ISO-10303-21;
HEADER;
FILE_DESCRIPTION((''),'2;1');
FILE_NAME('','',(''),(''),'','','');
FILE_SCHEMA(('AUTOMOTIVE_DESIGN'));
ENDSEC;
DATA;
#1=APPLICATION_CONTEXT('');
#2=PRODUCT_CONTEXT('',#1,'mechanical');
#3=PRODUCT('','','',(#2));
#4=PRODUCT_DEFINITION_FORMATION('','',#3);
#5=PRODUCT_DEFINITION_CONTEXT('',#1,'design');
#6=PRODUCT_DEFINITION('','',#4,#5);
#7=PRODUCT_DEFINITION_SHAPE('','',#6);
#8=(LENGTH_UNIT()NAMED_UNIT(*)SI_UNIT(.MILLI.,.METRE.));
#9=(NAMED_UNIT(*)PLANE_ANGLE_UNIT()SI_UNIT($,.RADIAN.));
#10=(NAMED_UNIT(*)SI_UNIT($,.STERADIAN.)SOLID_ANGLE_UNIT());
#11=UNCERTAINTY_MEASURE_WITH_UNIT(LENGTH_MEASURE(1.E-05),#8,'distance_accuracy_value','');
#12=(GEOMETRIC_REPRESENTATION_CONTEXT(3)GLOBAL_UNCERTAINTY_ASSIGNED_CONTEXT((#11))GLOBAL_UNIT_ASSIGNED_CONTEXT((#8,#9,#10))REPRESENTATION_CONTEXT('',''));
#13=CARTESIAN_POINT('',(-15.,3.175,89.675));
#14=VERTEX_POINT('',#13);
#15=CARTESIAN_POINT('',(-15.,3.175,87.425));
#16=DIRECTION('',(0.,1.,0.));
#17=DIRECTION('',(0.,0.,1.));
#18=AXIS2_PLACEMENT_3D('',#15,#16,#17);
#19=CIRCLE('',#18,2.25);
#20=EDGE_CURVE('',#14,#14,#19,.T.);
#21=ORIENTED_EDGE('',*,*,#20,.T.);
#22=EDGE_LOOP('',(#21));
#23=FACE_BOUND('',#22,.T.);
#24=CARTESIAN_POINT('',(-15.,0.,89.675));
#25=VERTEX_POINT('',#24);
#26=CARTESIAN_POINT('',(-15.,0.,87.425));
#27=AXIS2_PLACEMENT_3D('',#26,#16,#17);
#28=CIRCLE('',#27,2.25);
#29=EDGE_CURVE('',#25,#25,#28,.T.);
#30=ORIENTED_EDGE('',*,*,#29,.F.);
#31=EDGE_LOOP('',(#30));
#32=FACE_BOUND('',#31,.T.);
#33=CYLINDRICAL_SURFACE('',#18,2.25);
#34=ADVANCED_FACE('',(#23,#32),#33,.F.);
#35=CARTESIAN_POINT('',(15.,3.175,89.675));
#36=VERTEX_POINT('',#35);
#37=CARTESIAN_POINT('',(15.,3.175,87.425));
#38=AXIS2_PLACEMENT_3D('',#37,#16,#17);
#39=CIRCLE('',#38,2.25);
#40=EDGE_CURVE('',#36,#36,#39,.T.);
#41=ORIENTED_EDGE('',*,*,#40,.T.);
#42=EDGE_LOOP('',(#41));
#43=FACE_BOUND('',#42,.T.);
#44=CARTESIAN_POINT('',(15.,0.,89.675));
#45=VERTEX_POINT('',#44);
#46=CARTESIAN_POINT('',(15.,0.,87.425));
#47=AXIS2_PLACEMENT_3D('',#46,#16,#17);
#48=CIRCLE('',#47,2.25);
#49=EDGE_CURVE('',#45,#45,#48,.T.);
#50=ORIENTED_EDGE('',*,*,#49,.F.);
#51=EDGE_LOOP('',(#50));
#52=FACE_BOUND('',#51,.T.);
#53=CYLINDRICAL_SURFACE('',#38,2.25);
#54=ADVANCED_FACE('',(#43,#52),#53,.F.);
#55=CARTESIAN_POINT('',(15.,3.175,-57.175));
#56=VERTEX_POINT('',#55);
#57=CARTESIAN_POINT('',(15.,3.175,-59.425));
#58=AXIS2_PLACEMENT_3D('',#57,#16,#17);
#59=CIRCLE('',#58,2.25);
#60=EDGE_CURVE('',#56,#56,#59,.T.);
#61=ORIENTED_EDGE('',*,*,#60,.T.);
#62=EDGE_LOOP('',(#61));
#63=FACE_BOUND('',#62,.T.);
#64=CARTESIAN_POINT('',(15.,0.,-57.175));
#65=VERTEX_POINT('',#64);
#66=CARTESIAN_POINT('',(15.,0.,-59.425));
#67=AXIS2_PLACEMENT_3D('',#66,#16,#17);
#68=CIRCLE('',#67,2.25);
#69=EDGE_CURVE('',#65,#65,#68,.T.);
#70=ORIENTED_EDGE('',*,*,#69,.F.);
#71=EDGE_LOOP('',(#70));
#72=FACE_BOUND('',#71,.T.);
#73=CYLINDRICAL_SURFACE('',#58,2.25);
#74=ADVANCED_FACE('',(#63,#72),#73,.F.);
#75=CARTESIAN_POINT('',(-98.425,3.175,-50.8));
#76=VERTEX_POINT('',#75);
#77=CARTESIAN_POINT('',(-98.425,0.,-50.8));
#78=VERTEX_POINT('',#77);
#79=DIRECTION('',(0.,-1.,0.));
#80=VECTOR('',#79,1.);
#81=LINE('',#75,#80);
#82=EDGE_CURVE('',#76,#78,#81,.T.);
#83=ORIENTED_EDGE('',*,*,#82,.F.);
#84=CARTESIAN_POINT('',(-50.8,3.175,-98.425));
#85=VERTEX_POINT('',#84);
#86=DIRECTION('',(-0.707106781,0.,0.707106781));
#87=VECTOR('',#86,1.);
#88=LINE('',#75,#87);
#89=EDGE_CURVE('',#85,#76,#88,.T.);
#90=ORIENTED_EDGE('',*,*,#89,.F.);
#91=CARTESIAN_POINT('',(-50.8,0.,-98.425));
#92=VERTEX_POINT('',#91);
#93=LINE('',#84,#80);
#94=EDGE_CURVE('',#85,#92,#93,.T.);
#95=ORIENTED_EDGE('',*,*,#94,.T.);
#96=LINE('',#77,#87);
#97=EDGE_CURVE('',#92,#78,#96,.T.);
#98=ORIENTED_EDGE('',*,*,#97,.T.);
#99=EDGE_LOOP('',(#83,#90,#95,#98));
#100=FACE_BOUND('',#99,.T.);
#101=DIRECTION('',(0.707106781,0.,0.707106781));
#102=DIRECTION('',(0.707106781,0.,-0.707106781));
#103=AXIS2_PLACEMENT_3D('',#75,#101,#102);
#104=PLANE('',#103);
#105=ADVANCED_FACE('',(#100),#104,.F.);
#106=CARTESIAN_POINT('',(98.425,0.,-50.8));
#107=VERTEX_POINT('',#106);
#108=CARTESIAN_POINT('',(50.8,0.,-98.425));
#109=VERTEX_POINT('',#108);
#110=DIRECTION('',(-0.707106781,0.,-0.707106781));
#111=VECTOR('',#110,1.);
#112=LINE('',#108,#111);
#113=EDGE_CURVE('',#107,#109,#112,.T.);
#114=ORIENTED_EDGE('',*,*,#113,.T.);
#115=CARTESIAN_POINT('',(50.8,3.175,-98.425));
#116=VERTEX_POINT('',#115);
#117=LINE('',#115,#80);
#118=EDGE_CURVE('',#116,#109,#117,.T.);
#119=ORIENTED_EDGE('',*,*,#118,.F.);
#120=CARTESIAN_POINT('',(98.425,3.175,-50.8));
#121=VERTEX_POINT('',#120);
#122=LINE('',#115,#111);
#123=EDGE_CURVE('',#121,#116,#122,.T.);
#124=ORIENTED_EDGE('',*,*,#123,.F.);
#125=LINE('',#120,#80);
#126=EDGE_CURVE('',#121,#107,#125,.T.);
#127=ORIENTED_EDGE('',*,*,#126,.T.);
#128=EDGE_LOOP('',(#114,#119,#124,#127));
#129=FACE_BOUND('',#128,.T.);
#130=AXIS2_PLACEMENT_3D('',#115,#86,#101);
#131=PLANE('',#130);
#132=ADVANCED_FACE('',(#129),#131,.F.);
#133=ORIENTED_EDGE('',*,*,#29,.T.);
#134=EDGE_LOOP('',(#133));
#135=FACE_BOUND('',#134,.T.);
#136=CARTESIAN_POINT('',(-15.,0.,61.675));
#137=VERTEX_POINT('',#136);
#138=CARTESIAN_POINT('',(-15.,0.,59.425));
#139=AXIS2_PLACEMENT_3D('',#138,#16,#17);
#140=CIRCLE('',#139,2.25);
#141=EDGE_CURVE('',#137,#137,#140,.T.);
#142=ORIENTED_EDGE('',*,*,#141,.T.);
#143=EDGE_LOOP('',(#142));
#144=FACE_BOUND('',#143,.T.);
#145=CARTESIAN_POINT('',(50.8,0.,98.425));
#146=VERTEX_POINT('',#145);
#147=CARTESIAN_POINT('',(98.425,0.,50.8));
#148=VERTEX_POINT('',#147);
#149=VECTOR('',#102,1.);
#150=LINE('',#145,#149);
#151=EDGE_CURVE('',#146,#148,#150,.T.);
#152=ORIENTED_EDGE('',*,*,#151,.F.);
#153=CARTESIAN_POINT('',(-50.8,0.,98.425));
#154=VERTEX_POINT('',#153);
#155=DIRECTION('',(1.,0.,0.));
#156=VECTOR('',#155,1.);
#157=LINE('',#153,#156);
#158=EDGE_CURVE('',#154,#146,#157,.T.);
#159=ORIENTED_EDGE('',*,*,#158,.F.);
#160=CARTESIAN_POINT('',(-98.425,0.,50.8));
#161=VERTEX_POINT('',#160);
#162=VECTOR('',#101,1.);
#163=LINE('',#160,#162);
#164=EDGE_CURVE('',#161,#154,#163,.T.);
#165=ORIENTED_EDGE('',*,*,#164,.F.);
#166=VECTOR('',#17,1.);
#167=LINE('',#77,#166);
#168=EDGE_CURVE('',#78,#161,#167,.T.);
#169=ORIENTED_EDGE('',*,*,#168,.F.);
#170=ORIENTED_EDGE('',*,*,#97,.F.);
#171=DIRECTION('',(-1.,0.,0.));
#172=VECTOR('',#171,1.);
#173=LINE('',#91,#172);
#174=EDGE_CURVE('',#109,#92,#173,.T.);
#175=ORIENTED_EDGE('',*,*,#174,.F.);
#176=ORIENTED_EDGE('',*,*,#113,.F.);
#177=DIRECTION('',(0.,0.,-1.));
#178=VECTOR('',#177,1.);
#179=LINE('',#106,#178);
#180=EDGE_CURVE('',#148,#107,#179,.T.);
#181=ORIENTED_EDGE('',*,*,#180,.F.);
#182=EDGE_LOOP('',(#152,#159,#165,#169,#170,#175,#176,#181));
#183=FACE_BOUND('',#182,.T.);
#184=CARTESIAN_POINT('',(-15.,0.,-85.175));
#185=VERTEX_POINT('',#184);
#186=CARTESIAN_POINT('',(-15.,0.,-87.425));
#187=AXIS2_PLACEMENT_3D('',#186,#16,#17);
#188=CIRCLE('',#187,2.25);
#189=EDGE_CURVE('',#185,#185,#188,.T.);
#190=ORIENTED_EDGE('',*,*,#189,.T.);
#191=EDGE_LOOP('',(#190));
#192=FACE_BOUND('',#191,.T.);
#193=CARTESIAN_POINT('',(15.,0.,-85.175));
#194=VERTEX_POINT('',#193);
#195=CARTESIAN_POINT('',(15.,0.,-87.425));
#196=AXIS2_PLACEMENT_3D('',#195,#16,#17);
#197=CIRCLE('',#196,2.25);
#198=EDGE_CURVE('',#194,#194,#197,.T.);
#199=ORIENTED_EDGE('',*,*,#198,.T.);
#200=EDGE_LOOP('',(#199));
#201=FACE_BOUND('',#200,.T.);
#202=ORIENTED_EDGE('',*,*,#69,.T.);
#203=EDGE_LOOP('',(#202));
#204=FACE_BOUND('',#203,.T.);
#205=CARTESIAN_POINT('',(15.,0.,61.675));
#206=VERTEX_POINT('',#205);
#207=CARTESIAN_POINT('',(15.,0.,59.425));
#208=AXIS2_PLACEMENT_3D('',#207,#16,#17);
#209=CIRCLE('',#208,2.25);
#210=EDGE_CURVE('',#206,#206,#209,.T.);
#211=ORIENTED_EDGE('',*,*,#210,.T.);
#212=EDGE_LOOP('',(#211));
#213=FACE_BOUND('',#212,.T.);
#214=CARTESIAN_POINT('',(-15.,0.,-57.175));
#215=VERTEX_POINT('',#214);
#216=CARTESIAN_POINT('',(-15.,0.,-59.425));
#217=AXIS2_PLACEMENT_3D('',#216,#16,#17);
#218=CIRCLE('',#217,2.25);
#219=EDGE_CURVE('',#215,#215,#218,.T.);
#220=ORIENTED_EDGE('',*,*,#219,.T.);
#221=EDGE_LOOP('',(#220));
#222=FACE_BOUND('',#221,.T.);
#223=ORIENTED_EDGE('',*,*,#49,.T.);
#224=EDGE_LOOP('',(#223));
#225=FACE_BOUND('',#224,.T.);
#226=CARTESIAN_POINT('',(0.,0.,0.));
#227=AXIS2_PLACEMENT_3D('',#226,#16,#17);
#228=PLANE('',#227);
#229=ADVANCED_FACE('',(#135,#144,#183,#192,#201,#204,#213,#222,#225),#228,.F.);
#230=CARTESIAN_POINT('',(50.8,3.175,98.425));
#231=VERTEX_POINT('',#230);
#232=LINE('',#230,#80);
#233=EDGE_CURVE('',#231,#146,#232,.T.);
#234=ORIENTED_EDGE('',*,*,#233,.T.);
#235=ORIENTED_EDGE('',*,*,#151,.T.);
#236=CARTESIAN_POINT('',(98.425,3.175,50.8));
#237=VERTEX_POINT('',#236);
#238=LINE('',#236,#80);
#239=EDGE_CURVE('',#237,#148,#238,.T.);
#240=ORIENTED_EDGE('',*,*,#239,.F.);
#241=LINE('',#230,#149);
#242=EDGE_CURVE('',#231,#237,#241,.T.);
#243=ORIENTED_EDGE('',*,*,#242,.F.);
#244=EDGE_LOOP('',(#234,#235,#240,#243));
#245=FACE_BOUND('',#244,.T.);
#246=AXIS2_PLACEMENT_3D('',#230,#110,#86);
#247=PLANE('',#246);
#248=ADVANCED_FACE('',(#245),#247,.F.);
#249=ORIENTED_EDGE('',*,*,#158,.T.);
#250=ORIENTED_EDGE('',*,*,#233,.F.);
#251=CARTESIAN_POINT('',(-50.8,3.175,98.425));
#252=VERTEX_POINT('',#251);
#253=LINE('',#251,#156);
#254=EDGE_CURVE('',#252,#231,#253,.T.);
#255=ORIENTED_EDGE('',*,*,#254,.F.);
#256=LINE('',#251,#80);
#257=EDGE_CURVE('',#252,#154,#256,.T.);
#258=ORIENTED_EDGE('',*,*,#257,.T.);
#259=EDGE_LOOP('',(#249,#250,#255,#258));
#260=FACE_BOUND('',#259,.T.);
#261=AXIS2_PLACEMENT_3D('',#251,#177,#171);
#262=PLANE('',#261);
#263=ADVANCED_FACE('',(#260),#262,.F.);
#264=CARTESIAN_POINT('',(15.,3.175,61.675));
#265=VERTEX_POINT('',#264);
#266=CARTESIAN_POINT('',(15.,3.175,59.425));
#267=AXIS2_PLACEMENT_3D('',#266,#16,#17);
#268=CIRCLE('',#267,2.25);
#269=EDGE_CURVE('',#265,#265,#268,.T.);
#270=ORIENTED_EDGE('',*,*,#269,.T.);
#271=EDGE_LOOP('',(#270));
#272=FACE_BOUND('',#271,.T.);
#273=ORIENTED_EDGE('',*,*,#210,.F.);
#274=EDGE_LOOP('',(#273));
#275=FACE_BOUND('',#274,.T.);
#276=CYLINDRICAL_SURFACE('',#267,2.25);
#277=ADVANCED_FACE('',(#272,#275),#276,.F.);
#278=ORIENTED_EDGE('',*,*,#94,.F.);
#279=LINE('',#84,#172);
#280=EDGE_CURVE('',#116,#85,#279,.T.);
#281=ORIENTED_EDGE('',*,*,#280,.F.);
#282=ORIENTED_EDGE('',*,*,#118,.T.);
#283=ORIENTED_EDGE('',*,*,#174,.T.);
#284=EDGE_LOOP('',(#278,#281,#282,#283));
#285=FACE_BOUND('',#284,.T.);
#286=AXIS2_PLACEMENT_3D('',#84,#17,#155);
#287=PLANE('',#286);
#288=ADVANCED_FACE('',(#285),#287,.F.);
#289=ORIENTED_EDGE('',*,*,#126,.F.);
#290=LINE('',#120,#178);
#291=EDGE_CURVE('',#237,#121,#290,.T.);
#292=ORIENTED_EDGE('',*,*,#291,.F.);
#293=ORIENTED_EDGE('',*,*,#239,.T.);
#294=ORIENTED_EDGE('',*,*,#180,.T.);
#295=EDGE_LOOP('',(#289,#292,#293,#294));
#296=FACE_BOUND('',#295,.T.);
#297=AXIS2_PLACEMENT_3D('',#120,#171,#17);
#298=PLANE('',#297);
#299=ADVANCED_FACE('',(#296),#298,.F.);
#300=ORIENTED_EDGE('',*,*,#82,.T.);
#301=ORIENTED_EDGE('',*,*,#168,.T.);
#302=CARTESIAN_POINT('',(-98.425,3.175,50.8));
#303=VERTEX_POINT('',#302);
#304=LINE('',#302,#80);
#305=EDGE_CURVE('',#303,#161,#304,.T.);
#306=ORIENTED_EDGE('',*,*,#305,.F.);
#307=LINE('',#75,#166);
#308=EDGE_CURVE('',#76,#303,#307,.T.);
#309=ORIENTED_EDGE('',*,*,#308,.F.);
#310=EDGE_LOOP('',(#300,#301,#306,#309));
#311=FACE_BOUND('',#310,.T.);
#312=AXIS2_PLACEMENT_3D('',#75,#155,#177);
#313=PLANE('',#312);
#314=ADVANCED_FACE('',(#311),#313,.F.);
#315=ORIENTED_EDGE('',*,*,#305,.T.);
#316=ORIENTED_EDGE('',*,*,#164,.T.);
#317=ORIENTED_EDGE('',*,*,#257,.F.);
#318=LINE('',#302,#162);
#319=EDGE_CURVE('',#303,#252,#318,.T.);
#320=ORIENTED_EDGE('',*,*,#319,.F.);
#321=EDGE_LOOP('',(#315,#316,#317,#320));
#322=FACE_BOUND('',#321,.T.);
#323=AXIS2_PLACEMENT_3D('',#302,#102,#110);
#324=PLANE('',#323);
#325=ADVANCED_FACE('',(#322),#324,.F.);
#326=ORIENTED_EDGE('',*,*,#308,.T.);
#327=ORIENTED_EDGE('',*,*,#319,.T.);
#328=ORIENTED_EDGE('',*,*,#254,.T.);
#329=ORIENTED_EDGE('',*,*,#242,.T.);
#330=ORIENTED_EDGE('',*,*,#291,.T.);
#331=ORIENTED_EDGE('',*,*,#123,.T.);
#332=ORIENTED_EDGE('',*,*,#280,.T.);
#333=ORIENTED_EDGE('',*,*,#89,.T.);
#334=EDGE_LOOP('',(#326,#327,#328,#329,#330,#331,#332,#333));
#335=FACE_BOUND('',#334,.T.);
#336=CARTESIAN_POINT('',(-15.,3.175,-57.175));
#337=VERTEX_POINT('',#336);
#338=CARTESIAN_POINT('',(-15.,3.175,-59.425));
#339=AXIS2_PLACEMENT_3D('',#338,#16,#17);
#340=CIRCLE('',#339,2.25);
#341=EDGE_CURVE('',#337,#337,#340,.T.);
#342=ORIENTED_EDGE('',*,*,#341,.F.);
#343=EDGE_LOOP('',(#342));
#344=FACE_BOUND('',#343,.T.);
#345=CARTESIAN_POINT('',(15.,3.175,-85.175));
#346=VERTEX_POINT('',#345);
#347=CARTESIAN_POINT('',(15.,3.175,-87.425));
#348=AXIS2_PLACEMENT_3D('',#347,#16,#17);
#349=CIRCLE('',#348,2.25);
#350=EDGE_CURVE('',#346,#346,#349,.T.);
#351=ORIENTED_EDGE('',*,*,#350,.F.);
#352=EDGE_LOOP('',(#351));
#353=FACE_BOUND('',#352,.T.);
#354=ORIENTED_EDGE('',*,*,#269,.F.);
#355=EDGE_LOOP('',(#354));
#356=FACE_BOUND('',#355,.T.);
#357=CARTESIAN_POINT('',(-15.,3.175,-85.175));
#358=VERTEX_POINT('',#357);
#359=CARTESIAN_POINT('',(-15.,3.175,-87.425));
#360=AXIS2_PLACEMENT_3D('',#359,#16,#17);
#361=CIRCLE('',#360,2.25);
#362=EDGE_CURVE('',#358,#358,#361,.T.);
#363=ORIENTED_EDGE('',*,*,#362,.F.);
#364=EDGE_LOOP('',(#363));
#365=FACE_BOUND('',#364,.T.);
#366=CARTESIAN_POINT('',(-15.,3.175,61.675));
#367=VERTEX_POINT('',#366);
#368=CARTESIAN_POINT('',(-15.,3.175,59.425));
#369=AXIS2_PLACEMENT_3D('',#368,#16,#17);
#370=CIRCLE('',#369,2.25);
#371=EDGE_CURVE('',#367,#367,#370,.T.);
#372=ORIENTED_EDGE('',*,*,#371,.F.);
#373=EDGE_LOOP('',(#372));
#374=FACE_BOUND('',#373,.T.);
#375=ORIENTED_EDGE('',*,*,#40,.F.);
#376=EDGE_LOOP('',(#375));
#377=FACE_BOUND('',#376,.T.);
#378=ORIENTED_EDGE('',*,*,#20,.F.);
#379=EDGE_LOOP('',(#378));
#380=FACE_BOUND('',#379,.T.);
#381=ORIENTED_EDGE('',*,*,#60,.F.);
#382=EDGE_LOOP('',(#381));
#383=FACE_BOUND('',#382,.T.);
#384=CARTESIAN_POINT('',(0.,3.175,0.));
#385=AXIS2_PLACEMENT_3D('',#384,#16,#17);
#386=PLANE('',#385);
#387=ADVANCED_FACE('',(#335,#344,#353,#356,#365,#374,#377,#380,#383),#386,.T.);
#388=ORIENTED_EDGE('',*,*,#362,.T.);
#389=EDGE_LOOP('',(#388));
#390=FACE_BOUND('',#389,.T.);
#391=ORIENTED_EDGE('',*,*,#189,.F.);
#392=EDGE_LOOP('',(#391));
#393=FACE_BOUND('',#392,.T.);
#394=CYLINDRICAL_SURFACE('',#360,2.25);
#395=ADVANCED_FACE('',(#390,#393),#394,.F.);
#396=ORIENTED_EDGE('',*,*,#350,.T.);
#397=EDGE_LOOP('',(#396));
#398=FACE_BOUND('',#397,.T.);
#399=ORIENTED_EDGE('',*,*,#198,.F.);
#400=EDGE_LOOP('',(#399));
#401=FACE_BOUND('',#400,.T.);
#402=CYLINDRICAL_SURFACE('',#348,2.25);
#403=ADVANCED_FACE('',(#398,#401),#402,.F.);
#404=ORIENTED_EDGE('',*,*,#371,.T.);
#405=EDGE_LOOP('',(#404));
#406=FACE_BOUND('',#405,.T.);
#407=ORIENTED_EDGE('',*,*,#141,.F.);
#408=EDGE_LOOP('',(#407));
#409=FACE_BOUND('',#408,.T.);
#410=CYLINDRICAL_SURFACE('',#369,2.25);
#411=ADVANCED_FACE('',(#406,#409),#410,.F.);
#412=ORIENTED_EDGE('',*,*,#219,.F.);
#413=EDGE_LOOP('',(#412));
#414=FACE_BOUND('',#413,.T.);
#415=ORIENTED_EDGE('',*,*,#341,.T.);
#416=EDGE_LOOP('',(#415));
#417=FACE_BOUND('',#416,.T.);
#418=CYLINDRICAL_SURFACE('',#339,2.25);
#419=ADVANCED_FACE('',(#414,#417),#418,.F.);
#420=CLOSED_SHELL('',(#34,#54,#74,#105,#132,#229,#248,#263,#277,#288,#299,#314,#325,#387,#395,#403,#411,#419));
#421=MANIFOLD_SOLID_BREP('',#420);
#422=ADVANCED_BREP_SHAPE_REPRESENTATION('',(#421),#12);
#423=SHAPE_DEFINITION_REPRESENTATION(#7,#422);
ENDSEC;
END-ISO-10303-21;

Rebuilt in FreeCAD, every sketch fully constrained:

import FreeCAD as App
import Part
import Sketcher

V = App.Vector
Q = App.Units.Quantity

doc = App.newDocument("Part")
body = doc.addObject("PartDesign::Body", "Body")

# Sketch on XZ plane
sketch1 = doc.addObject("Sketcher::SketchObject", "Sketch")
body.addObject(sketch1)
sketch1.AttachmentSupport = (doc.XZ_Plane, [""])
sketch1.MapMode = "FlatFace"
sketch1.addGeometry([
    Part.LineSegment(V(-51, -98, 0), V(-98, -51, 0)),  # 0
    Part.LineSegment(V(-98, -51, 0), V(-98, 51, 0)),  # 1
    Part.LineSegment(V(-98, 51, 0), V(-51, 98, 0)),  # 2
    Part.LineSegment(V(-51, 98, 0), V(51, 98, 0)),  # 3
    Part.LineSegment(V(51, 98, 0), V(98, 51, 0)),  # 4
    Part.LineSegment(V(98, 51, 0), V(98, -51, 0)),  # 5
    Part.LineSegment(V(98, -51, 0), V(51, -98, 0)),  # 6
    Part.LineSegment(V(51, -98, 0), V(-51, -98, 0)),  # 7
], False)
sketch1.addConstraint([
    Sketcher.Constraint("Coincident", 0, 2, 1, 1),
    Sketcher.Constraint("Coincident", 1, 2, 2, 1),
    Sketcher.Constraint("Coincident", 2, 2, 3, 1),
    Sketcher.Constraint("Coincident", 3, 2, 4, 1),
    Sketcher.Constraint("Coincident", 4, 2, 5, 1),
    Sketcher.Constraint("Coincident", 5, 2, 6, 1),
    Sketcher.Constraint("Coincident", 6, 2, 7, 1),
    Sketcher.Constraint("Coincident", 7, 2, 0, 1),
    Sketcher.Constraint("Vertical", 1),
    Sketcher.Constraint("Horizontal", 3),
    Sketcher.Constraint("Vertical", 5),
    Sketcher.Constraint("Horizontal", 7),
    Sketcher.Constraint("Symmetric", 0, 2, 4, 2, -1, 1),
    Sketcher.Constraint("Symmetric", 2, 2, 6, 2, -1, 1),
    Sketcher.Constraint("Perpendicular", 0, 2),
    Sketcher.Constraint("Perpendicular", 2, 4),
    Sketcher.Constraint("Perpendicular", 4, 6),
    Sketcher.Constraint("Horizontal", 1, 2, 4, 2),
    Sketcher.Constraint("Vertical", 3, 2, 6, 2),
    Sketcher.Constraint("Equal", 7, 1),
    Sketcher.Constraint("DistanceX", 3, 1, 3, 2, Q("4 in")),
    Sketcher.Constraint("DistanceX", 1, 2, 4, 2, Q("7.75 in")),
])
pad1 = doc.addObject("PartDesign::Pad", "Pad")
body.addObject(pad1)
pad1.Profile = sketch1
pad1.Length = Q("0.125 in")
pad1.Reversed = True

# Sketch on XZ plane
sketch2 = doc.addObject("Sketcher::SketchObject", "Sketch001")
body.addObject(sketch2)
sketch2.AttachmentSupport = (doc.XZ_Plane, [""])
sketch2.MapMode = "FlatFace"
sketch2.AttachmentOffset = App.Placement(V(0, 0, -0.125 * 25.4), App.Rotation())
sketch2.addGeometry([
    Part.Circle(V(-15, -87.4, 0), V(0, 0, 1), 2.2),
    Part.Circle(V(-15, -59.4, 0), V(0, 0, 1), 2.2),
    Part.Circle(V(15, -59.4, 0), V(0, 0, 1), 2.2),
    Part.Circle(V(15, -87.4, 0), V(0, 0, 1), 2.2),
], False)
sketch2.addConstraint([
    Sketcher.Constraint("Equal", 0, 1),
    Sketcher.Constraint("Equal", 1, 2),
    Sketcher.Constraint("Equal", 2, 3),
    Sketcher.Constraint("Symmetric", 1, 3, 2, 3, -2),
    Sketcher.Constraint("Symmetric", 0, 3, 3, 3, -2),
    Sketcher.Constraint("Vertical", 0, 3, 1, 3),
    Sketcher.Constraint("Diameter", 0, Q("4.5 mm")),
    Sketcher.Constraint("DistanceX", 0, 3, -1, 1, Q("15 mm")),
    Sketcher.Constraint("DistanceY", 0, 3, -1, 1, Q("87.425 mm")),
    Sketcher.Constraint("DistanceY", 1, 3, -1, 1, Q("59.425 mm")),
])
doc.recompute()
hole = doc.addObject("PartDesign::Hole", "Hole")
body.addObject(hole)
hole.Profile = sketch2
hole.ThreadType = "None"
hole.Diameter = 4.5
hole.DepthType = "ThroughAll"
hole.Reversed = True
doc.recompute()

mirrored = doc.addObject("PartDesign::Mirrored", "Mirrored")
body.addObject(mirrored)
mirrored.Originals = [hole]
mirrored.MirrorPlane = (doc.XY_Plane, [""])
body.Tip = mirrored

doc.recompute()
